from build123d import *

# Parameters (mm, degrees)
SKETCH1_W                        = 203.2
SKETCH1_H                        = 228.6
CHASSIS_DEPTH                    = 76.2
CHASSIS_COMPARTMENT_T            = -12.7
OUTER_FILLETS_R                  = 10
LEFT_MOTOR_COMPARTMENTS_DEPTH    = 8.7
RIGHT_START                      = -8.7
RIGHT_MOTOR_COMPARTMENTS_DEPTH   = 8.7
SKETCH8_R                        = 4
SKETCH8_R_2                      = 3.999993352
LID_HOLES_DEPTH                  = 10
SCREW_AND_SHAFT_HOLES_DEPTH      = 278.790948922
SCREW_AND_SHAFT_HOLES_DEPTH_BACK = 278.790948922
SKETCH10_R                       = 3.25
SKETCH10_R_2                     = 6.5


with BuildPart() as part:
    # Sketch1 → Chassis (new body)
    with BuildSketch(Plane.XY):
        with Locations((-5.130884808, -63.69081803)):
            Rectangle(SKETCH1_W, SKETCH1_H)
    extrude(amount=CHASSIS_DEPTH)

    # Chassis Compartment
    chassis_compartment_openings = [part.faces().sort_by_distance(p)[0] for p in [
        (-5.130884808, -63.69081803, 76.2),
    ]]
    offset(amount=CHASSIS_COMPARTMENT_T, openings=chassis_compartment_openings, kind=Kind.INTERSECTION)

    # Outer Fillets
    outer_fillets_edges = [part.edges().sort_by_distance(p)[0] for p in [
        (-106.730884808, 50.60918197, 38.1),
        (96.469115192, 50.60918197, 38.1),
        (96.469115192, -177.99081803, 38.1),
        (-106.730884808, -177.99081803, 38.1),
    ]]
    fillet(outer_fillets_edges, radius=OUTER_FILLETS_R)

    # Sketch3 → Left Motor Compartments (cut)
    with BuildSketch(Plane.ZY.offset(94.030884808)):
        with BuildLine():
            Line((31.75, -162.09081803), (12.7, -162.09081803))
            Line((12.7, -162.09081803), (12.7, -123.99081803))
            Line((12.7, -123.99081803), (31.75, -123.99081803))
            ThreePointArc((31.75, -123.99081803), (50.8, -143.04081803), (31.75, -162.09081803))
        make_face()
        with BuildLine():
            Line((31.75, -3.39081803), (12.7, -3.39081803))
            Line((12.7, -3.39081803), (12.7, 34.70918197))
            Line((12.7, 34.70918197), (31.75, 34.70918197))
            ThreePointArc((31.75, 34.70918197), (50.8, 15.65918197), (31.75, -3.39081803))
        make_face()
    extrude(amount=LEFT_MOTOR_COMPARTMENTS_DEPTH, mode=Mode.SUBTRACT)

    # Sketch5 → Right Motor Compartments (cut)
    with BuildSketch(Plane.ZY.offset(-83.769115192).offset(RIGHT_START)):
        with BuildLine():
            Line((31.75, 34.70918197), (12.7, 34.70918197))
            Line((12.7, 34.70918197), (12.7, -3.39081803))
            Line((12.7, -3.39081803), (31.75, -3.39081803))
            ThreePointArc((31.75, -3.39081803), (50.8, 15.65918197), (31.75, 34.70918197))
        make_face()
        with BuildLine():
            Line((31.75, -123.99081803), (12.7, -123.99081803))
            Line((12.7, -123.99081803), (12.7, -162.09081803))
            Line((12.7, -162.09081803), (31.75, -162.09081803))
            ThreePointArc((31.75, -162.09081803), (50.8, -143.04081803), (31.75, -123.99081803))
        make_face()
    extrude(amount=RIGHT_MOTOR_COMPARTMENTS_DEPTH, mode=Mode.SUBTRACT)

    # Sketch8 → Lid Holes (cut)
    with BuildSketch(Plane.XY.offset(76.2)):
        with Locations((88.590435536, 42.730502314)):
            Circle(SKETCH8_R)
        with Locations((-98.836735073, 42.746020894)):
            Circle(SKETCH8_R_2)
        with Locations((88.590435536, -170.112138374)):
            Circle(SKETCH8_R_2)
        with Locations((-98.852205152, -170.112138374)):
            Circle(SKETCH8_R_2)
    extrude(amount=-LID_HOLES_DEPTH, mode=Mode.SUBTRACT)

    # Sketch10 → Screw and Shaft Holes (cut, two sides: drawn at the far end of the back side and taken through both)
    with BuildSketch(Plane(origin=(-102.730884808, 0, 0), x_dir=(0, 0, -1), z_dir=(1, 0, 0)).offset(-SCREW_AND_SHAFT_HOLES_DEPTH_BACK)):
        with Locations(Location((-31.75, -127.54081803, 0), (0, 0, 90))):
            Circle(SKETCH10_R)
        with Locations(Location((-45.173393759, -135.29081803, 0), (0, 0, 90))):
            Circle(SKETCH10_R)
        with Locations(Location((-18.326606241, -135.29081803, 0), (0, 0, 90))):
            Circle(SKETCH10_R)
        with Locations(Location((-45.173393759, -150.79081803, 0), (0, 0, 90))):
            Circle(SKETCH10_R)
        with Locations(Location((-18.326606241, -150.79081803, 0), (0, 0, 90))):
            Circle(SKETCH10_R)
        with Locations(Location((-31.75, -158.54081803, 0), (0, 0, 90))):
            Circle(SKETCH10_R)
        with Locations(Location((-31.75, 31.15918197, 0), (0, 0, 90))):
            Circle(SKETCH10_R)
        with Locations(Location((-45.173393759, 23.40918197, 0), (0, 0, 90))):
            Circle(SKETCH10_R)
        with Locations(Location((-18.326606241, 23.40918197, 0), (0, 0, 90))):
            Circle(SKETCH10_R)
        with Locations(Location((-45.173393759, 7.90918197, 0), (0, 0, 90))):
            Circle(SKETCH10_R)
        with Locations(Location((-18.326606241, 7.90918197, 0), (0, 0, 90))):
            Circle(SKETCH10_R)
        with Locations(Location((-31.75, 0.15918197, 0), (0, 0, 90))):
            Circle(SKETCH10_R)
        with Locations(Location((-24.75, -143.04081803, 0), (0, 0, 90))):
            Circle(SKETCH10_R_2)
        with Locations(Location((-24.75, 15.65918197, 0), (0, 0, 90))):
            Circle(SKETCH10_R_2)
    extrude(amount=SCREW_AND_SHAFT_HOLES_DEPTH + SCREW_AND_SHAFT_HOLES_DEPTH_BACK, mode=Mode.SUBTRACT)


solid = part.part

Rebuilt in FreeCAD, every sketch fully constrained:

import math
import FreeCAD as App
import Part
import Sketcher
Q = App.Units.Quantity


def edges_at(feature, points):
    """Names of the edges that pass closest to the given points."""
    edges = feature.Shape.Edges
    near = lambda p: min(range(len(edges)), key=lambda i: edges[i].distToShape(Part.Vertex(*p))[0])
    return sorted({f"Edge{near(p) + 1}" for p in points})


def faces_at(feature, points):
    """Names of the faces that lie closest to the given points."""
    faces = feature.Shape.Faces
    near = lambda p: min(range(len(faces)), key=lambda i: faces[i].distToShape(Part.Vertex(*p))[0])
    return sorted({f"Face{near(p) + 1}" for p in points})

doc = App.newDocument("Part")
body = doc.addObject("PartDesign::Body", "Body")

sketch1 = body.newObject("Sketcher::SketchObject", "Sketch")
sketch1.AttachmentSupport = (doc.getObject("XY_Plane"), [""])
sketch1.MapMode = "FlatFace"
sketch1.addGeometry([
    Part.LineSegment(App.Vector(-107, 51, 0), App.Vector(-107, -178, 0)),
    Part.LineSegment(App.Vector(-107, -178, 0), App.Vector(96, -178, 0)),
    Part.LineSegment(App.Vector(96, -178, 0), App.Vector(96, 51, 0)),
    Part.LineSegment(App.Vector(96, 51, 0), App.Vector(-107, 51, 0)),
], False)
sketch1.addConstraint([
    Sketcher.Constraint("Coincident", 0, 2, 1, 1),
    Sketcher.Constraint("Coincident", 1, 2, 2, 1),
    Sketcher.Constraint("Coincident", 2, 2, 3, 1),
    Sketcher.Constraint("Coincident", 3, 2, 0, 1),
    Sketcher.Constraint("Vertical", 0),
    Sketcher.Constraint("Horizontal", 1),
    Sketcher.Constraint("Vertical", 2),
    Sketcher.Constraint("Horizontal", 3),
    Sketcher.Constraint("DistanceX", 1, 1, 1, 2, Q("8 in")),
    Sketcher.Constraint("DistanceY", 0, 2, 0, 1, Q("9 in")),
    Sketcher.Constraint("DistanceY", 0, 2, -1, 1, Q("177.990818 mm")),
    Sketcher.Constraint("DistanceX", 0, 2, -1, 1, Q("106.730885 mm")),
])
pad1 = body.newObject("PartDesign::Pad", "Pad")
pad1.Profile = sketch1
pad1.Length = Q("3 in")
doc.recompute()

thickness = body.newObject("PartDesign::Thickness", "Thickness")
thickness.Base = (pad1, faces_at(pad1, [(-5.131, -63.691, 76.2)]))
thickness.Value = Q("0.5 in")
thickness.Reversed = True
thickness.Join = "Intersection"
doc.recompute()

fillet = body.newObject("PartDesign::Fillet", "Fillet")
fillet.Base = (thickness, edges_at(thickness, [
    (-106.731, 50.609, 38.1),
    (96.469, 50.609, 38.1),
    (96.469, -177.991, 38.1),
    (-106.731, -177.991, 38.1),
]))
fillet.Radius = 10

sketch2 = body.newObject("Sketcher::SketchObject", "Sketch001")
sketch2.AttachmentSupport = (doc.getObject("YZ_Plane"), [""])
sketch2.MapMode = "FlatFace"
sketch2.AttachmentOffset = App.Placement(App.Vector(0, 0, -94.030885), App.Rotation())
sketch2.addGeometry([
    Part.LineSegment(App.Vector(-162, 13, 0), App.Vector(-162, 32, 0)),
    Part.ArcOfCircle(Part.Circle(App.Vector(-143, 32, 0), App.Vector(0, 0, 1), 19), math.radians(0), math.radians(180)),
    Part.LineSegment(App.Vector(-124, 32, 0), App.Vector(-124, 13, 0)),
    Part.LineSegment(App.Vector(-124, 13, 0), App.Vector(-162, 13, 0)),
    Part.LineSegment(App.Vector(-3, 13, 0), App.Vector(-3, 32, 0)),
    Part.ArcOfCircle(Part.Circle(App.Vector(16, 32, 0), App.Vector(0, 0, 1), 19), math.radians(0), math.radians(180)),
    Part.LineSegment(App.Vector(35, 32, 0), App.Vector(35, 13, 0)),
    Part.LineSegment(App.Vector(35, 13, 0), App.Vector(-3, 13, 0)),
], False)
sketch2.addConstraint([
    Sketcher.Constraint("Tangent", 0, 2, 1, 2),
    Sketcher.Constraint("Tangent", 1, 1, 2, 1),
    Sketcher.Constraint("Coincident", 2, 2, 3, 1),
    Sketcher.Constraint("Coincident", 3, 2, 0, 1),
    Sketcher.Constraint("Tangent", 4, 2, 5, 2),
    Sketcher.Constraint("Tangent", 5, 1, 6, 1),
    Sketcher.Constraint("Coincident", 6, 2, 7, 1),
    Sketcher.Constraint("Coincident", 7, 2, 4, 1),
    Sketcher.Constraint("Vertical", 0),
    Sketcher.Constraint("Vertical", 2),
    Sketcher.Constraint("Horizontal", 3),
    Sketcher.Constraint("Vertical", 4),
    Sketcher.Constraint("Vertical", 6),
    Sketcher.Constraint("Horizontal", 7),
    Sketcher.Constraint("Equal", 1, 5),
    Sketcher.Constraint("Horizontal", 1, 3, 5, 3),
    Sketcher.Constraint("Horizontal", 3, 2, 6, 2),
    Sketcher.Constraint("Radius", 1, Q("0.75 in")),
    Sketcher.Constraint("DistanceY", 0, 1, 0, 2, Q("0.75 in")),
    Sketcher.Constraint("DistanceY", -1, 1, 2, 2, Q("0.5 in")),
    Sketcher.Constraint("DistanceX", 1, 3, 5, 3, Q("158.7 mm")),
    Sketcher.Constraint("DistanceX", 1, 3, -1, 1, Q("143.040818 mm")),
])
pocket1 = body.newObject("PartDesign::Pocket", "Pocket")
pocket1.Profile = sketch2
pocket1.Length = 8.7

sketch3 = body.newObject("Sketcher::SketchObject", "Sketch002")
sketch3.AttachmentSupport = (doc.getObject("YZ_Plane"), [""])
sketch3.MapMode = "FlatFace"
sketch3.AttachmentOffset = App.Placement(App.Vector(0, 0, 92.469115), App.Rotation())
sketch3.addGeometry([
    Part.LineSegment(App.Vector(35, 32, 0), App.Vector(35, 13, 0)),
    Part.LineSegment(App.Vector(35, 13, 0), App.Vector(-3, 13, 0)),
    Part.LineSegment(App.Vector(-3, 13, 0), App.Vector(-3, 32, 0)),
    Part.ArcOfCircle(Part.Circle(App.Vector(16, 32, 0), App.Vector(0, 0, 1), 19), math.radians(0), math.radians(180)),
    Part.LineSegment(App.Vector(-124, 32, 0), App.Vector(-124, 13, 0)),
    Part.LineSegment(App.Vector(-124, 13, 0), App.Vector(-162, 13, 0)),
    Part.LineSegment(App.Vector(-162, 13, 0), App.Vector(-162, 32, 0)),
    Part.ArcOfCircle(Part.Circle(App.Vector(-143, 32, 0), App.Vector(0, 0, 1), 19), math.radians(0), math.radians(180)),
], False)
sketch3.addConstraint([
    Sketcher.Constraint("Coincident", 0, 2, 1, 1),
    Sketcher.Constraint("Coincident", 1, 2, 2, 1),
    Sketcher.Constraint("Tangent", 2, 2, 3, 2),
    Sketcher.Constraint("Tangent", 3, 1, 0, 1),
    Sketcher.Constraint("Coincident", 4, 2, 5, 1),
    Sketcher.Constraint("Coincident", 5, 2, 6, 1),
    Sketcher.Constraint("Tangent", 6, 2, 7, 2),
    Sketcher.Constraint("Tangent", 7, 1, 4, 1),
    Sketcher.Constraint("Vertical", 0),
    Sketcher.Constraint("Horizontal", 1),
    Sketcher.Constraint("Vertical", 2),
    Sketcher.Constraint("Vertical", 4),
    Sketcher.Constraint("Horizontal", 5),
    Sketcher.Constraint("Vertical", 6),
    Sketcher.Constraint("Equal", 3, 7),
    Sketcher.Constraint("Horizontal", 3, 3, 7, 3),
    Sketcher.Constraint("Horizontal", 1, 2, 4, 2),
    Sketcher.Constraint("Radius", 3, Q("0.75 in")),
    Sketcher.Constraint("DistanceY", 0, 2, 0, 1, Q("0.75 in")),
    Sketcher.Constraint("DistanceY", -1, 1, 0, 2, Q("0.5 in")),
    Sketcher.Constraint("DistanceX", 7, 3, 3, 3, Q("158.7 mm")),
    Sketcher.Constraint("DistanceX", -1, 1, 3, 3, Q("15.659182 mm")),
])
pocket2 = body.newObject("PartDesign::Pocket", "Pocket001")
pocket2.Profile = sketch3
pocket2.Length = 8.7

sketch4 = body.newObject("Sketcher::SketchObject", "Sketch003")
sketch4.AttachmentSupport = (doc.getObject("XY_Plane"), [""])
sketch4.MapMode = "FlatFace"
sketch4.AttachmentOffset = App.Placement(App.Vector(0, 0, 3 * 25.4), App.Rotation())
sketch4.addGeometry([
    Part.Circle(App.Vector(88.6, 42.7, 0), App.Vector(0, 0, 1), 4),
    Part.Circle(App.Vector(-98.8, 42.7, 0), App.Vector(0, 0, 1), 4),
    Part.Circle(App.Vector(88.6, -170.1, 0), App.Vector(0, 0, 1), 4),
    Part.Circle(App.Vector(-98.9, -170.1, 0), App.Vector(0, 0, 1), 4),
], False)
sketch4.addConstraint([
    Sketcher.Constraint("Equal", 1, 2),
    Sketcher.Constraint("Equal", 2, 3),
    Sketcher.Constraint("Horizontal", 2, 3, 3, 3),
    Sketcher.Constraint("Vertical", 0, 3, 2, 3),
    Sketcher.Constraint("Diameter", 0, Q("8 mm")),
    Sketcher.Constraint("Diameter", 1, Q("7.999987 mm")),
    Sketcher.Constraint("DistanceY", -1, 1, 1, 3, Q("42.746021 mm")),
    Sketcher.Constraint("DistanceY", 2, 3, -1, 1, Q("170.112138 mm")),
    Sketcher.Constraint("DistanceX", 1, 3, 0, 3, Q("187.427171 mm")),
    Sketcher.Constraint("DistanceY", 0, 3, 1, 3, Q("0.015519 mm")),
    Sketcher.Constraint("DistanceX", 3, 3, 2, 3, Q("187.442641 mm")),
    Sketcher.Constraint("DistanceX", -1, 1, 0, 3, Q("88.590436 mm")),
])
pocket3 = body.newObject("PartDesign::Pocket", "Pocket002")
pocket3.Profile = sketch4
pocket3.Length = 10

sketch5 = body.newObject("Sketcher::SketchObject", "Sketch004")
sketch5.AttachmentSupport = (doc.getObject("YZ_Plane"), [""])
sketch5.MapMode = "FlatFace"
sketch5.AttachmentOffset = App.Placement(App.Vector(0, 0, -102.730885), App.Rotation())
sketch5.addGeometry([
    Part.Circle(App.Vector(-127.5, 31.8, 0), App.Vector(0, 0, 1), 3.2),
    Part.Circle(App.Vector(-135.3, 45.2, 0), App.Vector(0, 0, 1), 3.2),
    Part.Circle(App.Vector(-135.3, 18.3, 0), App.Vector(0, 0, 1), 3.2),
    Part.Circle(App.Vector(-150.8, 45.2, 0), App.Vector(0, 0, 1), 3.2),
    Part.Circle(App.Vector(-150.8, 18.3, 0), App.Vector(0, 0, 1), 3.2),
    Part.Circle(App.Vector(-158.5, 31.8, 0), App.Vector(0, 0, 1), 3.2),
    Part.Circle(App.Vector(31.2, 31.8, 0), App.Vector(0, 0, 1), 3.2),
    Part.Circle(App.Vector(23.4, 45.2, 0), App.Vector(0, 0, 1), 3.2),
    Part.Circle(App.Vector(23.4, 18.3, 0), App.Vector(0, 0, 1), 3.2),
    Part.Circle(App.Vector(7.9, 45.2, 0), App.Vector(0, 0, 1), 3.2),
    Part.Circle(App.Vector(7.9, 18.3, 0), App.Vector(0, 0, 1), 3.2),
    Part.Circle(App.Vector(0.2, 31.8, 0), App.Vector(0, 0, 1), 3.2),
    Part.Circle(App.Vector(-143, 24.8, 0), App.Vector(0, 0, 1), 6.5),
    Part.Circle(App.Vector(15.7, 24.8, 0), App.Vector(0, 0, 1), 6.5),
], False)
sketch5.addConstraint([
    Sketcher.Constraint("Equal", 0, 1),
    Sketcher.Constraint("Equal", 1, 2),
    Sketcher.Constraint("Equal", 2, 3),
    Sketcher.Constraint("Equal", 3, 4),
    Sketcher.Constraint("Equal", 4, 5),
    Sketcher.Constraint("Equal", 5, 6),
    Sketcher.Constraint("Equal", 6, 7),
    Sketcher.Constraint("Equal", 7, 8),
    Sketcher.Constraint("Equal", 8, 9),
    Sketcher.Constraint("Equal", 9, 10),
    Sketcher.Constraint("Equal", 10, 11),
    Sketcher.Constraint("Equal", 12, 13),
    Sketcher.Constraint("Horizontal", 1, 3, 3, 3),
    Sketcher.Constraint("Horizontal", 2, 3, 4, 3),
    Sketcher.Constraint("Horizontal", 0, 3, 5, 3),
    Sketcher.Constraint("Horizontal", 5, 3, 6, 3),
    Sketcher.Constraint("Horizontal", 3, 3, 7, 3),
    Sketcher.Constraint("Horizontal", 4, 3, 8, 3),
    Sketcher.Constraint("Horizontal", 7, 3, 9, 3),
    Sketcher.Constraint("Horizontal", 8, 3, 10, 3),
    Sketcher.Constraint("Horizontal", 6, 3, 11, 3),
    Sketcher.Constraint("Horizontal", 12, 3, 13, 3),
    Sketcher.Constraint("Vertical", 1, 3, 2, 3),
    Sketcher.Constraint("Vertical", 3, 3, 4, 3),
    Sketcher.Constraint("Vertical", 7, 3, 8, 3),
    Sketcher.Constraint("Vertical", 9, 3, 10, 3),
    Sketcher.Constraint("Diameter", 0, Q("6.5 mm")),
    Sketcher.Constraint("Diameter", 12, Q("13 mm")),
    Sketcher.Constraint("DistanceY", -1, 1, 0, 3, Q("1.25 in")),
    Sketcher.Constraint("DistanceY", -1, 1, 12, 3, Q("24.75 mm")),
    Sketcher.Constraint("DistanceX", 1, 3, 0, 3, Q("7.75 mm")),
    Sketcher.Constraint("DistanceX", 3, 3, 1, 3, Q("15.5 mm")),
    Sketcher.Constraint("DistanceX", 5, 3, 3, 3, Q("7.75 mm")),
    Sketcher.Constraint("DistanceX", 0, 3, 6, 3, Q("158.7 mm")),
    Sketcher.Constraint("DistanceX", 7, 3, 6, 3, Q("7.75 mm")),
    Sketcher.Constraint("DistanceX", 9, 3, 7, 3, Q("15.5 mm")),
    Sketcher.Constraint("DistanceX", 11, 3, 9, 3, Q("7.75 mm")),
    Sketcher.Constraint("DistanceX", 12, 3, 2, 3, Q("7.75 mm")),
    Sketcher.Constraint("DistanceX", 13, 3, 8, 3, Q("7.75 mm")),
    Sketcher.Constraint("DistanceX", 0, 3, -1, 1, Q("127.540818 mm")),
    Sketcher.Constraint("DistanceY", -1, 1, 1, 3, Q("45.173394 mm")),
    Sketcher.Constraint("DistanceY", -1, 1, 2, 3, Q("18.326606 mm")),
])
pocket4 = body.newObject("PartDesign::Pocket", "Pocket003")
pocket4.Profile = sketch5
pocket4.Type = "ThroughAll"
pocket4.Midplane = True

doc.recompute()
